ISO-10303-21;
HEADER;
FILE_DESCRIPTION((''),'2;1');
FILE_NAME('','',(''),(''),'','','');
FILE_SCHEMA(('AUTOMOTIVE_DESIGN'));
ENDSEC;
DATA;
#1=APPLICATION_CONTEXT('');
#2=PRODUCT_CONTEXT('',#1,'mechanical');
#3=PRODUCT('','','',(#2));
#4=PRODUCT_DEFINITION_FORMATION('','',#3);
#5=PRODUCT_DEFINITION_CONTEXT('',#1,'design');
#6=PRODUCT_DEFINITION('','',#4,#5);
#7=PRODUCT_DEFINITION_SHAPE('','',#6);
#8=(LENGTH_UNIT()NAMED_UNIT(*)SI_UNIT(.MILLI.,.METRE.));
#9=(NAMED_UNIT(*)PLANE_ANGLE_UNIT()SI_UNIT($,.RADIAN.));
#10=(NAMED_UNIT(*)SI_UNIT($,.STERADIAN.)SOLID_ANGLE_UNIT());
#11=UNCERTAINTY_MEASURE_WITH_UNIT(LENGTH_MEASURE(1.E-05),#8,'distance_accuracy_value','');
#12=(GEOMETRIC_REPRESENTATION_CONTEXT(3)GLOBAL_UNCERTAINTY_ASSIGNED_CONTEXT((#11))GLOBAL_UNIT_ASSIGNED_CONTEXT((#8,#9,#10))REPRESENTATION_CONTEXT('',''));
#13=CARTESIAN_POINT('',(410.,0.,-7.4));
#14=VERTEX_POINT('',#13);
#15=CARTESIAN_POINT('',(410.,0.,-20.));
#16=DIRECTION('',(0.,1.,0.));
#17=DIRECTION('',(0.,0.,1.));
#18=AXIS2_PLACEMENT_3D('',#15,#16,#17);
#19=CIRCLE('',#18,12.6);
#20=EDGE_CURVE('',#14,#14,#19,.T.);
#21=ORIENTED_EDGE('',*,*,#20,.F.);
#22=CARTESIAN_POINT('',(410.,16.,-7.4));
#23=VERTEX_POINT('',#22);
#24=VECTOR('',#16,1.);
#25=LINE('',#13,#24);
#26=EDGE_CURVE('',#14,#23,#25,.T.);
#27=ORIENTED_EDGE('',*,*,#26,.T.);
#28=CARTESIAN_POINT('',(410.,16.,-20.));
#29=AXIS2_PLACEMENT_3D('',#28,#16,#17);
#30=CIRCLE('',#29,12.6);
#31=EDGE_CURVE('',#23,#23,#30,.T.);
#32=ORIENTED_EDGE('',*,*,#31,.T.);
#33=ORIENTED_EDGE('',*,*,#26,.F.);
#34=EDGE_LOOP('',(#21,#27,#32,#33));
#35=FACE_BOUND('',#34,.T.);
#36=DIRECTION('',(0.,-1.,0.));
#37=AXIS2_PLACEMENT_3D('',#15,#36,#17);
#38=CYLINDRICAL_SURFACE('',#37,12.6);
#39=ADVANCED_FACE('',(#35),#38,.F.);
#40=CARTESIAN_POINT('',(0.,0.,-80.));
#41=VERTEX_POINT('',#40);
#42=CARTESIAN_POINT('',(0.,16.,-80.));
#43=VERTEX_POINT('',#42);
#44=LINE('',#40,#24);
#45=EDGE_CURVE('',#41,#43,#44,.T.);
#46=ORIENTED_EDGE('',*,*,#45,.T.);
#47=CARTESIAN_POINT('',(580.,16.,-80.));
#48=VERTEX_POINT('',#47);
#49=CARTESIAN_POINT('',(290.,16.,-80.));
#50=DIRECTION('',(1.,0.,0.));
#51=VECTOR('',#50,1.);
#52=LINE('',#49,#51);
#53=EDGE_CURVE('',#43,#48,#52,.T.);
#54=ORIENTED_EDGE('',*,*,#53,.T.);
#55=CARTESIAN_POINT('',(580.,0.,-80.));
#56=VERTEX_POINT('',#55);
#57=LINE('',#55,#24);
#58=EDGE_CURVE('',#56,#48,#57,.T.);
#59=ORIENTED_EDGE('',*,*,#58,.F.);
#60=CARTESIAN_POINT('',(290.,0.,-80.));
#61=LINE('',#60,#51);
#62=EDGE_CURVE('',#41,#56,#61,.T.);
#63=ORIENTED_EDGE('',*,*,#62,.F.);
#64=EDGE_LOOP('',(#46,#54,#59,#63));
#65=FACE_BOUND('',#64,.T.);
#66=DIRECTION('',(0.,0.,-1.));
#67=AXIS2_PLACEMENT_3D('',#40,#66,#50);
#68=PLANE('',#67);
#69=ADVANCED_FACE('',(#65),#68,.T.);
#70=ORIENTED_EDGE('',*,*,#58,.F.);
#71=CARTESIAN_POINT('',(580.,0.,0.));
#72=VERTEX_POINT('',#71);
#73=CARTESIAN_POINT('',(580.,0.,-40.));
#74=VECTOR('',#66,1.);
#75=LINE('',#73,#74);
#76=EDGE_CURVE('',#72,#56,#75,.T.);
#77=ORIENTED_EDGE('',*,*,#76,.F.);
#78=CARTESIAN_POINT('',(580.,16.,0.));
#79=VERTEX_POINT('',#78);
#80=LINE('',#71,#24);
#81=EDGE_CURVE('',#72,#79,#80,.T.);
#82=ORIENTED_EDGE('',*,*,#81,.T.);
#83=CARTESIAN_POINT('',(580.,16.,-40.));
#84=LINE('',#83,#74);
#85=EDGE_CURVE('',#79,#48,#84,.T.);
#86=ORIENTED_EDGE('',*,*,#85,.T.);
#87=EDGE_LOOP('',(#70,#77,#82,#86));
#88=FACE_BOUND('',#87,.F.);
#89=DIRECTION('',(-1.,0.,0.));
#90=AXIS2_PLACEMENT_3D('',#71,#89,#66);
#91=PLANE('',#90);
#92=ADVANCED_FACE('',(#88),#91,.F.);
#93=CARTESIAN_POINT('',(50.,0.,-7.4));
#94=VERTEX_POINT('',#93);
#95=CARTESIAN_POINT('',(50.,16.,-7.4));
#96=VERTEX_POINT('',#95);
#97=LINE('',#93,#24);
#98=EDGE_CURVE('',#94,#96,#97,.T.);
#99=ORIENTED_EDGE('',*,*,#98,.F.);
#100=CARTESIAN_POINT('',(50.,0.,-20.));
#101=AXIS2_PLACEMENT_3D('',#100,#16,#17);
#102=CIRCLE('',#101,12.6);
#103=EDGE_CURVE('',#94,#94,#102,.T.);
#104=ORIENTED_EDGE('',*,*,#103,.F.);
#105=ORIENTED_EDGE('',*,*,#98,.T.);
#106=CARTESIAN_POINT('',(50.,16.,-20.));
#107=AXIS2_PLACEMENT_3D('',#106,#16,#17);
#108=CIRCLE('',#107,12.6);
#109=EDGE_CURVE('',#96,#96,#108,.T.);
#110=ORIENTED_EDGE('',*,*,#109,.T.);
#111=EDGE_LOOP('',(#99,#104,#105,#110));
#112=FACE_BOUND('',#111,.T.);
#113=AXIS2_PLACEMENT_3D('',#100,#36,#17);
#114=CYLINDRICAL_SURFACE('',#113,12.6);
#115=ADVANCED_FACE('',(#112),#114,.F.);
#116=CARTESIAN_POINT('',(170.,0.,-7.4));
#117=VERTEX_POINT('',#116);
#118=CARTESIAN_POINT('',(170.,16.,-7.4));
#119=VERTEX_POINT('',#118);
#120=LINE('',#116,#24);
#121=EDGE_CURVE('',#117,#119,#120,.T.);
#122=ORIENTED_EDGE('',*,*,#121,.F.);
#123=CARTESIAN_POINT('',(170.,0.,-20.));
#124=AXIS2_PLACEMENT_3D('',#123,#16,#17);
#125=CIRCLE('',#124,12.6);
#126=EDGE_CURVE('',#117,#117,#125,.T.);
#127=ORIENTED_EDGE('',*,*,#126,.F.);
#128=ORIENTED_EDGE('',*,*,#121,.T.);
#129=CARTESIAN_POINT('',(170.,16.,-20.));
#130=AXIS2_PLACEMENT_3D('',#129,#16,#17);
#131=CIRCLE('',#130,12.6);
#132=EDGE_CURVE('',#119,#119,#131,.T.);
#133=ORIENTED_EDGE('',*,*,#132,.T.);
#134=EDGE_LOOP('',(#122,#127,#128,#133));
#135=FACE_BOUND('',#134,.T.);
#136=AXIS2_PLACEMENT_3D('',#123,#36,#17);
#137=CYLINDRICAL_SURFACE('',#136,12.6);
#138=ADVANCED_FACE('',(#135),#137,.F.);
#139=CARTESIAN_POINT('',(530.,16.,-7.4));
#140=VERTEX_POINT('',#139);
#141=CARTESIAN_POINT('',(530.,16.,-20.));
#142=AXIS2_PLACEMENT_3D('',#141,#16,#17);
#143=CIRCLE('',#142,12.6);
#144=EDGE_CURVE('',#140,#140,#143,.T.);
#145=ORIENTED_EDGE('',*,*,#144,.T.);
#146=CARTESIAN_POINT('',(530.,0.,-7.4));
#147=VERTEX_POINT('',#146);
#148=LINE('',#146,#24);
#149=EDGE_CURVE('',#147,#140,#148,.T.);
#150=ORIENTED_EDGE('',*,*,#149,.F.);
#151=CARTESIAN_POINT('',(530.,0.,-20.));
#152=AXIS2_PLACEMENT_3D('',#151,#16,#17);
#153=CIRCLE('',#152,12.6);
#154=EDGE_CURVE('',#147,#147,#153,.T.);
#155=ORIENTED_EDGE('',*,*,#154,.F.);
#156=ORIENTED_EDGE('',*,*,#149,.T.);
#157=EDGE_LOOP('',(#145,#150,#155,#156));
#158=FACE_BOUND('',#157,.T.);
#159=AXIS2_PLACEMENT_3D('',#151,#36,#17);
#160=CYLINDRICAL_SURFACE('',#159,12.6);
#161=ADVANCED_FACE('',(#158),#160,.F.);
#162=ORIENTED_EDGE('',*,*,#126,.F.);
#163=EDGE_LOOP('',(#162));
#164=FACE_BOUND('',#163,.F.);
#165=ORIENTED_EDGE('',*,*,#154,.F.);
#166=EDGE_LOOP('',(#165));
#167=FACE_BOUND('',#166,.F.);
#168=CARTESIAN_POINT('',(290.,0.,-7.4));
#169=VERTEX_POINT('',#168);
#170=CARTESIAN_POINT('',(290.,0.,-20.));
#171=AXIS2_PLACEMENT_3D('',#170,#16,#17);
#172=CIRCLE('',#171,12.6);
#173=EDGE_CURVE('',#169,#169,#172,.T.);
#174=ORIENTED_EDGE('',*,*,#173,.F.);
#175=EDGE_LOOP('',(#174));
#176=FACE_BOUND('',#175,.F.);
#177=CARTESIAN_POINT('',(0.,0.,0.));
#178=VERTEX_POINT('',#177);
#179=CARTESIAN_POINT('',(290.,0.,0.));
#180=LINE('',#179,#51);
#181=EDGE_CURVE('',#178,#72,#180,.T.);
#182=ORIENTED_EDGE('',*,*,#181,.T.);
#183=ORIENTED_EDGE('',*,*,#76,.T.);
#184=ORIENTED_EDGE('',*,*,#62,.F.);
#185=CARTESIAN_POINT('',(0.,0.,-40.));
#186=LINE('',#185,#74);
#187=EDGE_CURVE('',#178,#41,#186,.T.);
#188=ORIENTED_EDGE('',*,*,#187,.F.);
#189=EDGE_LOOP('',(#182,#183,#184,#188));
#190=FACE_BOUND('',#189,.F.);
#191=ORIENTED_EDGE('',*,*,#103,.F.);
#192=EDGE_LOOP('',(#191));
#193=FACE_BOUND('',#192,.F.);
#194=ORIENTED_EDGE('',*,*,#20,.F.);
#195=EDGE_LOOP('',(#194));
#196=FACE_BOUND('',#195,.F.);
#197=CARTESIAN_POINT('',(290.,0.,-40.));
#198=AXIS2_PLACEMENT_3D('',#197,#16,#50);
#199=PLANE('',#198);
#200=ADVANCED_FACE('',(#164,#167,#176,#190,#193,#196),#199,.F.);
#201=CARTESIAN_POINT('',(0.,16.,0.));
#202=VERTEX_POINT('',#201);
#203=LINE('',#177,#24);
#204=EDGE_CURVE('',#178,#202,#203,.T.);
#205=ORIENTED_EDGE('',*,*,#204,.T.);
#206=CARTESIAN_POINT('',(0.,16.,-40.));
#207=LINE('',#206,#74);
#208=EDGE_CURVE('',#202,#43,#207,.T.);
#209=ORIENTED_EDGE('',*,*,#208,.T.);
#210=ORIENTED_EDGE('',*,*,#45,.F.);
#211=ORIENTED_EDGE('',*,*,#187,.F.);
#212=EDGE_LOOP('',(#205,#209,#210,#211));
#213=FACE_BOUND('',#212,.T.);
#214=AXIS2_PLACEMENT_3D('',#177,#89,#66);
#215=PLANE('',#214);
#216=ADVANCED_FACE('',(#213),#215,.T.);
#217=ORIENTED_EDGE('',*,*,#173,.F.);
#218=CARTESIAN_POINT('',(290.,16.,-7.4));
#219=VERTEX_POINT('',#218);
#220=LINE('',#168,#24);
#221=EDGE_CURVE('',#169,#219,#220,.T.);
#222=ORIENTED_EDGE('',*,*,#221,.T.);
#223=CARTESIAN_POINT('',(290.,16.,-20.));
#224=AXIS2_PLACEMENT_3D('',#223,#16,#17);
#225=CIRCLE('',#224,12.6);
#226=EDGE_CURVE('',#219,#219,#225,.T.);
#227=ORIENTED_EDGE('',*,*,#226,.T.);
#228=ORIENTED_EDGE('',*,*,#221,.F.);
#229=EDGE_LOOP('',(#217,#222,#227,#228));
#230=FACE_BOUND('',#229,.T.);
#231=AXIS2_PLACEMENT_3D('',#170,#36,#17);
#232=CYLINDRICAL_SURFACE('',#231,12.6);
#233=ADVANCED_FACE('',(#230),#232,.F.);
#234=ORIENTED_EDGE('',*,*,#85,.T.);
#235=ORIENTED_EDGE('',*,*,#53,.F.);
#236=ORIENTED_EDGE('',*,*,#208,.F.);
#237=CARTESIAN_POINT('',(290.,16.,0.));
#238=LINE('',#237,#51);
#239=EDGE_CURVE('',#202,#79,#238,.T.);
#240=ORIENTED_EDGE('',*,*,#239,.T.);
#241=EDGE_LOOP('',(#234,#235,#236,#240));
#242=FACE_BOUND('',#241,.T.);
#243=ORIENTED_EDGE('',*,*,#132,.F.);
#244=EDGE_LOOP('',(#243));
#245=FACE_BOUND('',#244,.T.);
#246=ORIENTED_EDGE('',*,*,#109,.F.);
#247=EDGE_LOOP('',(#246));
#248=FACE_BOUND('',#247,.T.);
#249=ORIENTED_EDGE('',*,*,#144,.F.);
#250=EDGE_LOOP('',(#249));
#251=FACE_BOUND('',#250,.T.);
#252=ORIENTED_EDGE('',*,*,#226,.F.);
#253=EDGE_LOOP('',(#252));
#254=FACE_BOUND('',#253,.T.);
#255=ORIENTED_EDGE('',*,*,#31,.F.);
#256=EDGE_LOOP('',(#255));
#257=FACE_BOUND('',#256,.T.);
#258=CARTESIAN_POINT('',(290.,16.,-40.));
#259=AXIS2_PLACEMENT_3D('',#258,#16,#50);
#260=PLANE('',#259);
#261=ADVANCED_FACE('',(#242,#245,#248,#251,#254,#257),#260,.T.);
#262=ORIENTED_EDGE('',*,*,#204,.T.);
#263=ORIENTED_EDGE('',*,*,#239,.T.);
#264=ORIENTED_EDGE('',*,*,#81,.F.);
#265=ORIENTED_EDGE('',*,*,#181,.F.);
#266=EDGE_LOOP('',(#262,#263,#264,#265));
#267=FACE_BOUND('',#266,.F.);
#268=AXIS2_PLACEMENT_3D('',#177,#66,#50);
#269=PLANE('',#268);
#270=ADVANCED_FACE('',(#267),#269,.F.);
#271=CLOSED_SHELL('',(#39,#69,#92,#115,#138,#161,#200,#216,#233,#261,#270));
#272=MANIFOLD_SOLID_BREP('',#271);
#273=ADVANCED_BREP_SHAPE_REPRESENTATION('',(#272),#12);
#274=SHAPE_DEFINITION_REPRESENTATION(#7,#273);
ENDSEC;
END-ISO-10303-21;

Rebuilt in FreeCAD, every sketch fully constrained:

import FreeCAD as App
import Part
import Sketcher

V = App.Vector
Q = App.Units.Quantity

doc = App.newDocument("Part")
body = doc.addObject("PartDesign::Body", "Body")

sketch1 = body.newObject("Sketcher::SketchObject", "Sketch")
sketch1.AttachmentSupport = (doc.getObject("XZ_Plane"), [""])
sketch1.MapMode = "FlatFace"
sketch1.addGeometry(Part.LineSegment(V(0, -80, 0), V(0, 0, 0)), False)
sketch1.addGeometry(Part.LineSegment(V(0, 0, 0), V(580, 0, 0)), False)
sketch1.addGeometry(Part.LineSegment(V(580, 0, 0), V(580, -80, 0)), False)
sketch1.addGeometry(Part.LineSegment(V(580, -80, 0), V(0, -80, 0)), False)
sketch1.addGeometry(Part.Circle(V(50, -20, 0), V(0, 0, 1), 13), False)
sketch1.addGeometry(Part.Circle(V(170, -20, 0), V(0, 0, 1), 13), False)
sketch1.addGeometry(Part.Circle(V(290, -20, 0), V(0, 0, 1), 13), False)
sketch1.addGeometry(Part.Circle(V(410, -20, 0), V(0, 0, 1), 13), False)
sketch1.addGeometry(Part.Circle(V(530, -20, 0), V(0, 0, 1), 13), False)
sketch1.addConstraint(Sketcher.Constraint("Coincident", 0, 2, 1, 1))
sketch1.addConstraint(Sketcher.Constraint("Coincident", 1, 2, 2, 1))
sketch1.addConstraint(Sketcher.Constraint("Coincident", 2, 2, 3, 1))
sketch1.addConstraint(Sketcher.Constraint("Coincident", 3, 2, 0, 1))
sketch1.addConstraint(Sketcher.Constraint("Vertical", 0))
sketch1.addConstraint(Sketcher.Constraint("Horizontal", 1))
sketch1.addConstraint(Sketcher.Constraint("Vertical", 2))
sketch1.addConstraint(Sketcher.Constraint("Horizontal", 3))
sketch1.addConstraint(Sketcher.Constraint("Coincident", 0, 2, -1, 1))
sketch1.addConstraint(Sketcher.Constraint("Equal", 4, 5))
sketch1.addConstraint(Sketcher.Constraint("Equal", 5, 6))
sketch1.addConstraint(Sketcher.Constraint("Equal", 6, 7))
sketch1.addConstraint(Sketcher.Constraint("Equal", 7, 8))
sketch1.addConstraint(Sketcher.Constraint("Horizontal", 4, 3, 5, 3))
sketch1.addConstraint(Sketcher.Constraint("Horizontal", 5, 3, 6, 3))
sketch1.addConstraint(Sketcher.Constraint("Horizontal", 6, 3, 7, 3))
sketch1.addConstraint(Sketcher.Constraint("Horizontal", 7, 3, 8, 3))
sketch1.addConstraint(Sketcher.Constraint("Diameter", 4, Q("25.2 mm")))
sketch1.addConstraint(Sketcher.Constraint("DistanceX", 1, 1, 1, 2, Q("580 mm")))
sketch1.addConstraint(Sketcher.Constraint("DistanceY", 0, 1, 0, 2, Q("80 mm")))
sketch1.addConstraint(Sketcher.Constraint("DistanceX", -1, 1, 4, 3, Q("50 mm")))
sketch1.addConstraint(Sketcher.Constraint("DistanceY", 4, 3, -1, 1, Q("20 mm")))
sketch1.addConstraint(Sketcher.Constraint("DistanceX", -1, 1, 5, 3, Q("170 mm")))
sketch1.addConstraint(Sketcher.Constraint("DistanceX", -1, 1, 6, 3, Q("290 mm")))
sketch1.addConstraint(Sketcher.Constraint("DistanceX", -1, 1, 7, 3, Q("410 mm")))
sketch1.addConstraint(Sketcher.Constraint("DistanceX", -1, 1, 8, 3, Q("530 mm")))
pad1 = body.newObject("PartDesign::Pad", "Pad")
pad1.Profile = sketch1
pad1.Length = 16
pad1.Reversed = True

doc.recompute()
